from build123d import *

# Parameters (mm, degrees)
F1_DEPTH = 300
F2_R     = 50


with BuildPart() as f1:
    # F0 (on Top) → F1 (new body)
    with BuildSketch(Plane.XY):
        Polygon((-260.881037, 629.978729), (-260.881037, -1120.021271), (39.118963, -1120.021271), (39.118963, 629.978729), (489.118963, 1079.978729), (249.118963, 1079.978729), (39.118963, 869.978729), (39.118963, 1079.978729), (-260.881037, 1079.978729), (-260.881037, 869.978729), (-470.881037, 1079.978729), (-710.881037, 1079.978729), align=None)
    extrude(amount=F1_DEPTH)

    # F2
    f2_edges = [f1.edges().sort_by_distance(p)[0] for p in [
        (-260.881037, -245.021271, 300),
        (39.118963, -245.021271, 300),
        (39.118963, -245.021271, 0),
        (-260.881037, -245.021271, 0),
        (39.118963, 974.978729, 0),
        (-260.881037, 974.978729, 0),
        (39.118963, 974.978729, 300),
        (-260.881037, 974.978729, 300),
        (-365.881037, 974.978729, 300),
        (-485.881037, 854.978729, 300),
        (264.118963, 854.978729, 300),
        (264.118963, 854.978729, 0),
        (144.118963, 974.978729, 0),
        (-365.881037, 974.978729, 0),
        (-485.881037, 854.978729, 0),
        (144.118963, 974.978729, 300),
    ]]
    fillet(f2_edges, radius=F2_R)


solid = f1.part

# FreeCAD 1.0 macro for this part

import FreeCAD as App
import Part
import Sketcher
from FreeCAD import Vector


def edges_at(feature, points):
    """Names of the edges that pass closest to the given points."""
    edges = feature.Shape.Edges
    near = lambda p: min(range(len(edges)), key=lambda i: edges[i].distToShape(Part.Vertex(*p))[0])
    return sorted({f"Edge{near(p) + 1}" for p in points})

doc = App.newDocument("Part")
params = doc.addObject("Spreadsheet::Sheet", "Params")
for row, (alias, value) in enumerate([
    ("sketch1_width", "300 mm"),
    ("sketch1_width2", "240 mm"),
    ("sketch1_height", "1750 mm"),
    ("sketch1_height2", "210 mm"),
    ("pad1_length", "300 mm"),
    ("fillet_radius", "50 mm"),
], start=1):
    params.set(f"A{row}", alias)
    params.set(f"B{row}", "=" + value)
    params.setAlias(f"B{row}", alias)

body = doc.addObject("PartDesign::Body", "Body")

sketch1 = doc.addObject("Sketcher::SketchObject", "Sketch")
body.addObject(sketch1)
sketch1.AttachmentSupport = (doc.XY_Plane, [""])
sketch1.MapMode = "FlatFace"
sketch1.addGeometry([
    Part.LineSegment(Vector(-261, 630, 0), Vector(-261, -1120, 0)),
    Part.LineSegment(Vector(-261, -1120, 0), Vector(39, -1120, 0)),
    Part.LineSegment(Vector(39, -1120, 0), Vector(39, 630, 0)),
    Part.LineSegment(Vector(39, 630, 0), Vector(489, 1080, 0)),
    Part.LineSegment(Vector(489, 1080, 0), Vector(249, 1080, 0)),
    Part.LineSegment(Vector(249, 1080, 0), Vector(39, 870, 0)),
    Part.LineSegment(Vector(39, 870, 0), Vector(39, 1080, 0)),
    Part.LineSegment(Vector(39, 1080, 0), Vector(-261, 1080, 0)),
    Part.LineSegment(Vector(-261, 1080, 0), Vector(-261, 870, 0)),
    Part.LineSegment(Vector(-261, 870, 0), Vector(-471, 1080, 0)),
    Part.LineSegment(Vector(-471, 1080, 0), Vector(-711, 1080, 0)),
    Part.LineSegment(Vector(-711, 1080, 0), Vector(-261, 630, 0)),
], False)
sketch1.addConstraint([
    Sketcher.Constraint("Coincident", 0, 2, 1, 1),
    Sketcher.Constraint("Coincident", 1, 2, 2, 1),
    Sketcher.Constraint("Coincident", 2, 2, 3, 1),
    Sketcher.Constraint("Coincident", 3, 2, 4, 1),
    Sketcher.Constraint("Coincident", 4, 2, 5, 1),
    Sketcher.Constraint("Coincident", 5, 2, 6, 1),
    Sketcher.Constraint("Coincident", 6, 2, 7, 1),
    Sketcher.Constraint("Coincident", 7, 2, 8, 1),
    Sketcher.Constraint("Coincident", 8, 2, 9, 1),
    Sketcher.Constraint("Coincident", 9, 2, 10, 1),
    Sketcher.Constraint("Coincident", 10, 2, 11, 1),
    Sketcher.Constraint("Coincident", 11, 2, 0, 1),
    Sketcher.Constraint("Vertical", 0),
    Sketcher.Constraint("Horizontal", 1),
    Sketcher.Constraint("Vertical", 2),
    Sketcher.Constraint("Horizontal", 4),
    Sketcher.Constraint("Vertical", 6),
    Sketcher.Constraint("Horizontal", 7),
    Sketcher.Constraint("Vertical", 8),
    Sketcher.Constraint("Horizontal", 10),
    Sketcher.Constraint("Parallel", 3, 5),
    Sketcher.Constraint("Perpendicular", 5, 9),
    Sketcher.Constraint("Parallel", 9, 11),
    Sketcher.Constraint("Horizontal", 4, 2, 6, 2),
    Sketcher.Constraint("Horizontal", 5, 2, 8, 2),
    Sketcher.Constraint("Horizontal", 7, 2, 9, 2),
    Sketcher.Constraint("Horizontal", 2, 2, 11, 2),
    Sketcher.Constraint("Vertical", 2, 2, 5, 2),
    Sketcher.Constraint("Vertical", 0, 2, 7, 2),
    Sketcher.Constraint("Equal", 4, 10),
    Sketcher.Constraint("DistanceX", 1, 1, 1, 2, 300.0),
    Sketcher.Constraint("DistanceX", 4, 2, 4, 1, 240.0),
    Sketcher.Constraint("DistanceY", 0, 2, 0, 1, 1750.0),
    Sketcher.Constraint("DistanceY", 6, 1, 6, 2, 210.0),
    Sketcher.Constraint("DistanceY", 0, 2, -1, 1, 1120.021271),
    Sketcher.Constraint("DistanceX", 0, 2, -1, 1, 260.881037),
])
sketch1.setExpression("Constraints[30]", "Params.sketch1_width")
sketch1.setExpression("Constraints[31]", "Params.sketch1_width2")
sketch1.setExpression("Constraints[32]", "Params.sketch1_height")
sketch1.setExpression("Constraints[33]", "Params.sketch1_height2")
pad1 = doc.addObject("PartDesign::Pad", "Pad")
body.addObject(pad1)
pad1.Profile = sketch1
pad1.setExpression("Length", "Params.pad1_length")
doc.recompute()

fillet = doc.addObject("PartDesign::Fillet", "Fillet")
body.addObject(fillet)
fillet.Base = (pad1, edges_at(pad1, [
    (-260.881, -245.021, 300),
    (39.119, -245.021, 300),
    (39.119, -245.021, 0),
    (-260.881, -245.021, 0),
    (39.119, 974.979, 0),
    (-260.881, 974.979, 0),
    (39.119, 974.979, 300),
    (-260.881, 974.979, 300),
    (-365.881, 974.979, 300),
    (-485.881, 854.979, 300),
    (264.119, 854.979, 300),
    (264.119, 854.979, 0),
    (144.119, 974.979, 0),
    (-365.881, 974.979, 0),
    (-485.881, 854.979, 0),
    (144.119, 974.979, 300),
]))
fillet.setExpression("Radius", "Params.fillet_radius")

doc.recompute()
